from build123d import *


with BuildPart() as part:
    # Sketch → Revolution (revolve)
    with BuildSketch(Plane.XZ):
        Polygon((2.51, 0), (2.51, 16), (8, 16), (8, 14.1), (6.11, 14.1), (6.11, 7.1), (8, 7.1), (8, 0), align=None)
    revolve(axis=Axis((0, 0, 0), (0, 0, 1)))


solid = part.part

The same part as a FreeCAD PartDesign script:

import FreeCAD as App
import Part
import Sketcher


def add_polygon(sketch, points):
    """Adds a closed chain of lines whose ends are joined by coincident constraints."""
    first, n = sketch.GeometryCount, len(points)
    for a, b in zip(points, points[1:] + points[:1]):
        sketch.addGeometry(Part.LineSegment(App.Vector(*a, 0), App.Vector(*b, 0)), False)
    for i in range(n):
        sketch.addConstraint(Sketcher.Constraint("Coincident", first + i, 2, first + (i + 1) % n, 1))

doc = App.newDocument("Part")
params = doc.addObject("Spreadsheet::Sheet", "Params")
for row, (alias, value) in enumerate([
    ("sketch1_height", "16 mm"),
    ("sketch1_height2", "7 mm"),
    ("sketch1_height3", "7.1 mm"),
    ("sketch1_width", "5.49 mm"),
    ("sketch1_width2", "1.89 mm"),
    ("revolution_angle", "360 deg"),
], start=1):
    params.set(f"A{row}", alias)
    params.set(f"B{row}", "=" + value)
    params.setAlias(f"B{row}", alias)

body = doc.addObject("PartDesign::Body", "Body")

sketch1 = doc.addObject("Sketcher::SketchObject", "Sketch")
body.addObject(sketch1)
sketch1.AttachmentSupport = (doc.XZ_Plane, [""])
sketch1.MapMode = "FlatFace"
add_polygon(sketch1, [(2.51, 16), (2.51, 0), (8, 0), (8, 7.1), (6.11, 7.1), (6.11, 14.1), (8, 14.1), (8, 16)])
sketch1.addConstraint(Sketcher.Constraint("Vertical", 0))
sketch1.addConstraint(Sketcher.Constraint("Horizontal", 1))
sketch1.addConstraint(Sketcher.Constraint("Vertical", 2))
sketch1.addConstraint(Sketcher.Constraint("Horizontal", 3))
sketch1.addConstraint(Sketcher.Constraint("Vertical", 4))
sketch1.addConstraint(Sketcher.Constraint("Horizontal", 5))
sketch1.addConstraint(Sketcher.Constraint("Vertical", 6))
sketch1.addConstraint(Sketcher.Constraint("Horizontal", 7))
sketch1.addConstraint(Sketcher.Constraint("PointOnObject", 0, 2, -1))
sketch1.addConstraint(Sketcher.Constraint("Vertical", 2, 2, 5, 2))
sketch1.addConstraint(Sketcher.Constraint("DistanceY", 0, 2, 0, 1, 16.0))
sketch1.addConstraint(Sketcher.Constraint("DistanceY", 4, 1, 4, 2, 7.0))
sketch1.addConstraint(Sketcher.Constraint("DistanceY", 2, 1, 2, 2, 7.1))
sketch1.addConstraint(Sketcher.Constraint("DistanceX", -1, 1, 1, 2, 8.0))
sketch1.addConstraint(Sketcher.Constraint("DistanceX", 1, 1, 1, 2, 5.49))
sketch1.addConstraint(Sketcher.Constraint("DistanceX", 3, 2, 3, 1, 1.89))
sketch1.setExpression("Constraints[18]", "Params.sketch1_height")
sketch1.setExpression("Constraints[19]", "Params.sketch1_height2")
sketch1.setExpression("Constraints[20]", "Params.sketch1_height3")
sketch1.setExpression("Constraints[22]", "Params.sketch1_width")
sketch1.setExpression("Constraints[23]", "Params.sketch1_width2")
revolution = doc.addObject("PartDesign::Revolution", "Revolution")
body.addObject(revolution)
revolution.Profile = sketch1
revolution.ReferenceAxis = (sketch1, ["V_Axis"])
revolution.setExpression("Angle", "Params.revolution_angle")

doc.recompute()
